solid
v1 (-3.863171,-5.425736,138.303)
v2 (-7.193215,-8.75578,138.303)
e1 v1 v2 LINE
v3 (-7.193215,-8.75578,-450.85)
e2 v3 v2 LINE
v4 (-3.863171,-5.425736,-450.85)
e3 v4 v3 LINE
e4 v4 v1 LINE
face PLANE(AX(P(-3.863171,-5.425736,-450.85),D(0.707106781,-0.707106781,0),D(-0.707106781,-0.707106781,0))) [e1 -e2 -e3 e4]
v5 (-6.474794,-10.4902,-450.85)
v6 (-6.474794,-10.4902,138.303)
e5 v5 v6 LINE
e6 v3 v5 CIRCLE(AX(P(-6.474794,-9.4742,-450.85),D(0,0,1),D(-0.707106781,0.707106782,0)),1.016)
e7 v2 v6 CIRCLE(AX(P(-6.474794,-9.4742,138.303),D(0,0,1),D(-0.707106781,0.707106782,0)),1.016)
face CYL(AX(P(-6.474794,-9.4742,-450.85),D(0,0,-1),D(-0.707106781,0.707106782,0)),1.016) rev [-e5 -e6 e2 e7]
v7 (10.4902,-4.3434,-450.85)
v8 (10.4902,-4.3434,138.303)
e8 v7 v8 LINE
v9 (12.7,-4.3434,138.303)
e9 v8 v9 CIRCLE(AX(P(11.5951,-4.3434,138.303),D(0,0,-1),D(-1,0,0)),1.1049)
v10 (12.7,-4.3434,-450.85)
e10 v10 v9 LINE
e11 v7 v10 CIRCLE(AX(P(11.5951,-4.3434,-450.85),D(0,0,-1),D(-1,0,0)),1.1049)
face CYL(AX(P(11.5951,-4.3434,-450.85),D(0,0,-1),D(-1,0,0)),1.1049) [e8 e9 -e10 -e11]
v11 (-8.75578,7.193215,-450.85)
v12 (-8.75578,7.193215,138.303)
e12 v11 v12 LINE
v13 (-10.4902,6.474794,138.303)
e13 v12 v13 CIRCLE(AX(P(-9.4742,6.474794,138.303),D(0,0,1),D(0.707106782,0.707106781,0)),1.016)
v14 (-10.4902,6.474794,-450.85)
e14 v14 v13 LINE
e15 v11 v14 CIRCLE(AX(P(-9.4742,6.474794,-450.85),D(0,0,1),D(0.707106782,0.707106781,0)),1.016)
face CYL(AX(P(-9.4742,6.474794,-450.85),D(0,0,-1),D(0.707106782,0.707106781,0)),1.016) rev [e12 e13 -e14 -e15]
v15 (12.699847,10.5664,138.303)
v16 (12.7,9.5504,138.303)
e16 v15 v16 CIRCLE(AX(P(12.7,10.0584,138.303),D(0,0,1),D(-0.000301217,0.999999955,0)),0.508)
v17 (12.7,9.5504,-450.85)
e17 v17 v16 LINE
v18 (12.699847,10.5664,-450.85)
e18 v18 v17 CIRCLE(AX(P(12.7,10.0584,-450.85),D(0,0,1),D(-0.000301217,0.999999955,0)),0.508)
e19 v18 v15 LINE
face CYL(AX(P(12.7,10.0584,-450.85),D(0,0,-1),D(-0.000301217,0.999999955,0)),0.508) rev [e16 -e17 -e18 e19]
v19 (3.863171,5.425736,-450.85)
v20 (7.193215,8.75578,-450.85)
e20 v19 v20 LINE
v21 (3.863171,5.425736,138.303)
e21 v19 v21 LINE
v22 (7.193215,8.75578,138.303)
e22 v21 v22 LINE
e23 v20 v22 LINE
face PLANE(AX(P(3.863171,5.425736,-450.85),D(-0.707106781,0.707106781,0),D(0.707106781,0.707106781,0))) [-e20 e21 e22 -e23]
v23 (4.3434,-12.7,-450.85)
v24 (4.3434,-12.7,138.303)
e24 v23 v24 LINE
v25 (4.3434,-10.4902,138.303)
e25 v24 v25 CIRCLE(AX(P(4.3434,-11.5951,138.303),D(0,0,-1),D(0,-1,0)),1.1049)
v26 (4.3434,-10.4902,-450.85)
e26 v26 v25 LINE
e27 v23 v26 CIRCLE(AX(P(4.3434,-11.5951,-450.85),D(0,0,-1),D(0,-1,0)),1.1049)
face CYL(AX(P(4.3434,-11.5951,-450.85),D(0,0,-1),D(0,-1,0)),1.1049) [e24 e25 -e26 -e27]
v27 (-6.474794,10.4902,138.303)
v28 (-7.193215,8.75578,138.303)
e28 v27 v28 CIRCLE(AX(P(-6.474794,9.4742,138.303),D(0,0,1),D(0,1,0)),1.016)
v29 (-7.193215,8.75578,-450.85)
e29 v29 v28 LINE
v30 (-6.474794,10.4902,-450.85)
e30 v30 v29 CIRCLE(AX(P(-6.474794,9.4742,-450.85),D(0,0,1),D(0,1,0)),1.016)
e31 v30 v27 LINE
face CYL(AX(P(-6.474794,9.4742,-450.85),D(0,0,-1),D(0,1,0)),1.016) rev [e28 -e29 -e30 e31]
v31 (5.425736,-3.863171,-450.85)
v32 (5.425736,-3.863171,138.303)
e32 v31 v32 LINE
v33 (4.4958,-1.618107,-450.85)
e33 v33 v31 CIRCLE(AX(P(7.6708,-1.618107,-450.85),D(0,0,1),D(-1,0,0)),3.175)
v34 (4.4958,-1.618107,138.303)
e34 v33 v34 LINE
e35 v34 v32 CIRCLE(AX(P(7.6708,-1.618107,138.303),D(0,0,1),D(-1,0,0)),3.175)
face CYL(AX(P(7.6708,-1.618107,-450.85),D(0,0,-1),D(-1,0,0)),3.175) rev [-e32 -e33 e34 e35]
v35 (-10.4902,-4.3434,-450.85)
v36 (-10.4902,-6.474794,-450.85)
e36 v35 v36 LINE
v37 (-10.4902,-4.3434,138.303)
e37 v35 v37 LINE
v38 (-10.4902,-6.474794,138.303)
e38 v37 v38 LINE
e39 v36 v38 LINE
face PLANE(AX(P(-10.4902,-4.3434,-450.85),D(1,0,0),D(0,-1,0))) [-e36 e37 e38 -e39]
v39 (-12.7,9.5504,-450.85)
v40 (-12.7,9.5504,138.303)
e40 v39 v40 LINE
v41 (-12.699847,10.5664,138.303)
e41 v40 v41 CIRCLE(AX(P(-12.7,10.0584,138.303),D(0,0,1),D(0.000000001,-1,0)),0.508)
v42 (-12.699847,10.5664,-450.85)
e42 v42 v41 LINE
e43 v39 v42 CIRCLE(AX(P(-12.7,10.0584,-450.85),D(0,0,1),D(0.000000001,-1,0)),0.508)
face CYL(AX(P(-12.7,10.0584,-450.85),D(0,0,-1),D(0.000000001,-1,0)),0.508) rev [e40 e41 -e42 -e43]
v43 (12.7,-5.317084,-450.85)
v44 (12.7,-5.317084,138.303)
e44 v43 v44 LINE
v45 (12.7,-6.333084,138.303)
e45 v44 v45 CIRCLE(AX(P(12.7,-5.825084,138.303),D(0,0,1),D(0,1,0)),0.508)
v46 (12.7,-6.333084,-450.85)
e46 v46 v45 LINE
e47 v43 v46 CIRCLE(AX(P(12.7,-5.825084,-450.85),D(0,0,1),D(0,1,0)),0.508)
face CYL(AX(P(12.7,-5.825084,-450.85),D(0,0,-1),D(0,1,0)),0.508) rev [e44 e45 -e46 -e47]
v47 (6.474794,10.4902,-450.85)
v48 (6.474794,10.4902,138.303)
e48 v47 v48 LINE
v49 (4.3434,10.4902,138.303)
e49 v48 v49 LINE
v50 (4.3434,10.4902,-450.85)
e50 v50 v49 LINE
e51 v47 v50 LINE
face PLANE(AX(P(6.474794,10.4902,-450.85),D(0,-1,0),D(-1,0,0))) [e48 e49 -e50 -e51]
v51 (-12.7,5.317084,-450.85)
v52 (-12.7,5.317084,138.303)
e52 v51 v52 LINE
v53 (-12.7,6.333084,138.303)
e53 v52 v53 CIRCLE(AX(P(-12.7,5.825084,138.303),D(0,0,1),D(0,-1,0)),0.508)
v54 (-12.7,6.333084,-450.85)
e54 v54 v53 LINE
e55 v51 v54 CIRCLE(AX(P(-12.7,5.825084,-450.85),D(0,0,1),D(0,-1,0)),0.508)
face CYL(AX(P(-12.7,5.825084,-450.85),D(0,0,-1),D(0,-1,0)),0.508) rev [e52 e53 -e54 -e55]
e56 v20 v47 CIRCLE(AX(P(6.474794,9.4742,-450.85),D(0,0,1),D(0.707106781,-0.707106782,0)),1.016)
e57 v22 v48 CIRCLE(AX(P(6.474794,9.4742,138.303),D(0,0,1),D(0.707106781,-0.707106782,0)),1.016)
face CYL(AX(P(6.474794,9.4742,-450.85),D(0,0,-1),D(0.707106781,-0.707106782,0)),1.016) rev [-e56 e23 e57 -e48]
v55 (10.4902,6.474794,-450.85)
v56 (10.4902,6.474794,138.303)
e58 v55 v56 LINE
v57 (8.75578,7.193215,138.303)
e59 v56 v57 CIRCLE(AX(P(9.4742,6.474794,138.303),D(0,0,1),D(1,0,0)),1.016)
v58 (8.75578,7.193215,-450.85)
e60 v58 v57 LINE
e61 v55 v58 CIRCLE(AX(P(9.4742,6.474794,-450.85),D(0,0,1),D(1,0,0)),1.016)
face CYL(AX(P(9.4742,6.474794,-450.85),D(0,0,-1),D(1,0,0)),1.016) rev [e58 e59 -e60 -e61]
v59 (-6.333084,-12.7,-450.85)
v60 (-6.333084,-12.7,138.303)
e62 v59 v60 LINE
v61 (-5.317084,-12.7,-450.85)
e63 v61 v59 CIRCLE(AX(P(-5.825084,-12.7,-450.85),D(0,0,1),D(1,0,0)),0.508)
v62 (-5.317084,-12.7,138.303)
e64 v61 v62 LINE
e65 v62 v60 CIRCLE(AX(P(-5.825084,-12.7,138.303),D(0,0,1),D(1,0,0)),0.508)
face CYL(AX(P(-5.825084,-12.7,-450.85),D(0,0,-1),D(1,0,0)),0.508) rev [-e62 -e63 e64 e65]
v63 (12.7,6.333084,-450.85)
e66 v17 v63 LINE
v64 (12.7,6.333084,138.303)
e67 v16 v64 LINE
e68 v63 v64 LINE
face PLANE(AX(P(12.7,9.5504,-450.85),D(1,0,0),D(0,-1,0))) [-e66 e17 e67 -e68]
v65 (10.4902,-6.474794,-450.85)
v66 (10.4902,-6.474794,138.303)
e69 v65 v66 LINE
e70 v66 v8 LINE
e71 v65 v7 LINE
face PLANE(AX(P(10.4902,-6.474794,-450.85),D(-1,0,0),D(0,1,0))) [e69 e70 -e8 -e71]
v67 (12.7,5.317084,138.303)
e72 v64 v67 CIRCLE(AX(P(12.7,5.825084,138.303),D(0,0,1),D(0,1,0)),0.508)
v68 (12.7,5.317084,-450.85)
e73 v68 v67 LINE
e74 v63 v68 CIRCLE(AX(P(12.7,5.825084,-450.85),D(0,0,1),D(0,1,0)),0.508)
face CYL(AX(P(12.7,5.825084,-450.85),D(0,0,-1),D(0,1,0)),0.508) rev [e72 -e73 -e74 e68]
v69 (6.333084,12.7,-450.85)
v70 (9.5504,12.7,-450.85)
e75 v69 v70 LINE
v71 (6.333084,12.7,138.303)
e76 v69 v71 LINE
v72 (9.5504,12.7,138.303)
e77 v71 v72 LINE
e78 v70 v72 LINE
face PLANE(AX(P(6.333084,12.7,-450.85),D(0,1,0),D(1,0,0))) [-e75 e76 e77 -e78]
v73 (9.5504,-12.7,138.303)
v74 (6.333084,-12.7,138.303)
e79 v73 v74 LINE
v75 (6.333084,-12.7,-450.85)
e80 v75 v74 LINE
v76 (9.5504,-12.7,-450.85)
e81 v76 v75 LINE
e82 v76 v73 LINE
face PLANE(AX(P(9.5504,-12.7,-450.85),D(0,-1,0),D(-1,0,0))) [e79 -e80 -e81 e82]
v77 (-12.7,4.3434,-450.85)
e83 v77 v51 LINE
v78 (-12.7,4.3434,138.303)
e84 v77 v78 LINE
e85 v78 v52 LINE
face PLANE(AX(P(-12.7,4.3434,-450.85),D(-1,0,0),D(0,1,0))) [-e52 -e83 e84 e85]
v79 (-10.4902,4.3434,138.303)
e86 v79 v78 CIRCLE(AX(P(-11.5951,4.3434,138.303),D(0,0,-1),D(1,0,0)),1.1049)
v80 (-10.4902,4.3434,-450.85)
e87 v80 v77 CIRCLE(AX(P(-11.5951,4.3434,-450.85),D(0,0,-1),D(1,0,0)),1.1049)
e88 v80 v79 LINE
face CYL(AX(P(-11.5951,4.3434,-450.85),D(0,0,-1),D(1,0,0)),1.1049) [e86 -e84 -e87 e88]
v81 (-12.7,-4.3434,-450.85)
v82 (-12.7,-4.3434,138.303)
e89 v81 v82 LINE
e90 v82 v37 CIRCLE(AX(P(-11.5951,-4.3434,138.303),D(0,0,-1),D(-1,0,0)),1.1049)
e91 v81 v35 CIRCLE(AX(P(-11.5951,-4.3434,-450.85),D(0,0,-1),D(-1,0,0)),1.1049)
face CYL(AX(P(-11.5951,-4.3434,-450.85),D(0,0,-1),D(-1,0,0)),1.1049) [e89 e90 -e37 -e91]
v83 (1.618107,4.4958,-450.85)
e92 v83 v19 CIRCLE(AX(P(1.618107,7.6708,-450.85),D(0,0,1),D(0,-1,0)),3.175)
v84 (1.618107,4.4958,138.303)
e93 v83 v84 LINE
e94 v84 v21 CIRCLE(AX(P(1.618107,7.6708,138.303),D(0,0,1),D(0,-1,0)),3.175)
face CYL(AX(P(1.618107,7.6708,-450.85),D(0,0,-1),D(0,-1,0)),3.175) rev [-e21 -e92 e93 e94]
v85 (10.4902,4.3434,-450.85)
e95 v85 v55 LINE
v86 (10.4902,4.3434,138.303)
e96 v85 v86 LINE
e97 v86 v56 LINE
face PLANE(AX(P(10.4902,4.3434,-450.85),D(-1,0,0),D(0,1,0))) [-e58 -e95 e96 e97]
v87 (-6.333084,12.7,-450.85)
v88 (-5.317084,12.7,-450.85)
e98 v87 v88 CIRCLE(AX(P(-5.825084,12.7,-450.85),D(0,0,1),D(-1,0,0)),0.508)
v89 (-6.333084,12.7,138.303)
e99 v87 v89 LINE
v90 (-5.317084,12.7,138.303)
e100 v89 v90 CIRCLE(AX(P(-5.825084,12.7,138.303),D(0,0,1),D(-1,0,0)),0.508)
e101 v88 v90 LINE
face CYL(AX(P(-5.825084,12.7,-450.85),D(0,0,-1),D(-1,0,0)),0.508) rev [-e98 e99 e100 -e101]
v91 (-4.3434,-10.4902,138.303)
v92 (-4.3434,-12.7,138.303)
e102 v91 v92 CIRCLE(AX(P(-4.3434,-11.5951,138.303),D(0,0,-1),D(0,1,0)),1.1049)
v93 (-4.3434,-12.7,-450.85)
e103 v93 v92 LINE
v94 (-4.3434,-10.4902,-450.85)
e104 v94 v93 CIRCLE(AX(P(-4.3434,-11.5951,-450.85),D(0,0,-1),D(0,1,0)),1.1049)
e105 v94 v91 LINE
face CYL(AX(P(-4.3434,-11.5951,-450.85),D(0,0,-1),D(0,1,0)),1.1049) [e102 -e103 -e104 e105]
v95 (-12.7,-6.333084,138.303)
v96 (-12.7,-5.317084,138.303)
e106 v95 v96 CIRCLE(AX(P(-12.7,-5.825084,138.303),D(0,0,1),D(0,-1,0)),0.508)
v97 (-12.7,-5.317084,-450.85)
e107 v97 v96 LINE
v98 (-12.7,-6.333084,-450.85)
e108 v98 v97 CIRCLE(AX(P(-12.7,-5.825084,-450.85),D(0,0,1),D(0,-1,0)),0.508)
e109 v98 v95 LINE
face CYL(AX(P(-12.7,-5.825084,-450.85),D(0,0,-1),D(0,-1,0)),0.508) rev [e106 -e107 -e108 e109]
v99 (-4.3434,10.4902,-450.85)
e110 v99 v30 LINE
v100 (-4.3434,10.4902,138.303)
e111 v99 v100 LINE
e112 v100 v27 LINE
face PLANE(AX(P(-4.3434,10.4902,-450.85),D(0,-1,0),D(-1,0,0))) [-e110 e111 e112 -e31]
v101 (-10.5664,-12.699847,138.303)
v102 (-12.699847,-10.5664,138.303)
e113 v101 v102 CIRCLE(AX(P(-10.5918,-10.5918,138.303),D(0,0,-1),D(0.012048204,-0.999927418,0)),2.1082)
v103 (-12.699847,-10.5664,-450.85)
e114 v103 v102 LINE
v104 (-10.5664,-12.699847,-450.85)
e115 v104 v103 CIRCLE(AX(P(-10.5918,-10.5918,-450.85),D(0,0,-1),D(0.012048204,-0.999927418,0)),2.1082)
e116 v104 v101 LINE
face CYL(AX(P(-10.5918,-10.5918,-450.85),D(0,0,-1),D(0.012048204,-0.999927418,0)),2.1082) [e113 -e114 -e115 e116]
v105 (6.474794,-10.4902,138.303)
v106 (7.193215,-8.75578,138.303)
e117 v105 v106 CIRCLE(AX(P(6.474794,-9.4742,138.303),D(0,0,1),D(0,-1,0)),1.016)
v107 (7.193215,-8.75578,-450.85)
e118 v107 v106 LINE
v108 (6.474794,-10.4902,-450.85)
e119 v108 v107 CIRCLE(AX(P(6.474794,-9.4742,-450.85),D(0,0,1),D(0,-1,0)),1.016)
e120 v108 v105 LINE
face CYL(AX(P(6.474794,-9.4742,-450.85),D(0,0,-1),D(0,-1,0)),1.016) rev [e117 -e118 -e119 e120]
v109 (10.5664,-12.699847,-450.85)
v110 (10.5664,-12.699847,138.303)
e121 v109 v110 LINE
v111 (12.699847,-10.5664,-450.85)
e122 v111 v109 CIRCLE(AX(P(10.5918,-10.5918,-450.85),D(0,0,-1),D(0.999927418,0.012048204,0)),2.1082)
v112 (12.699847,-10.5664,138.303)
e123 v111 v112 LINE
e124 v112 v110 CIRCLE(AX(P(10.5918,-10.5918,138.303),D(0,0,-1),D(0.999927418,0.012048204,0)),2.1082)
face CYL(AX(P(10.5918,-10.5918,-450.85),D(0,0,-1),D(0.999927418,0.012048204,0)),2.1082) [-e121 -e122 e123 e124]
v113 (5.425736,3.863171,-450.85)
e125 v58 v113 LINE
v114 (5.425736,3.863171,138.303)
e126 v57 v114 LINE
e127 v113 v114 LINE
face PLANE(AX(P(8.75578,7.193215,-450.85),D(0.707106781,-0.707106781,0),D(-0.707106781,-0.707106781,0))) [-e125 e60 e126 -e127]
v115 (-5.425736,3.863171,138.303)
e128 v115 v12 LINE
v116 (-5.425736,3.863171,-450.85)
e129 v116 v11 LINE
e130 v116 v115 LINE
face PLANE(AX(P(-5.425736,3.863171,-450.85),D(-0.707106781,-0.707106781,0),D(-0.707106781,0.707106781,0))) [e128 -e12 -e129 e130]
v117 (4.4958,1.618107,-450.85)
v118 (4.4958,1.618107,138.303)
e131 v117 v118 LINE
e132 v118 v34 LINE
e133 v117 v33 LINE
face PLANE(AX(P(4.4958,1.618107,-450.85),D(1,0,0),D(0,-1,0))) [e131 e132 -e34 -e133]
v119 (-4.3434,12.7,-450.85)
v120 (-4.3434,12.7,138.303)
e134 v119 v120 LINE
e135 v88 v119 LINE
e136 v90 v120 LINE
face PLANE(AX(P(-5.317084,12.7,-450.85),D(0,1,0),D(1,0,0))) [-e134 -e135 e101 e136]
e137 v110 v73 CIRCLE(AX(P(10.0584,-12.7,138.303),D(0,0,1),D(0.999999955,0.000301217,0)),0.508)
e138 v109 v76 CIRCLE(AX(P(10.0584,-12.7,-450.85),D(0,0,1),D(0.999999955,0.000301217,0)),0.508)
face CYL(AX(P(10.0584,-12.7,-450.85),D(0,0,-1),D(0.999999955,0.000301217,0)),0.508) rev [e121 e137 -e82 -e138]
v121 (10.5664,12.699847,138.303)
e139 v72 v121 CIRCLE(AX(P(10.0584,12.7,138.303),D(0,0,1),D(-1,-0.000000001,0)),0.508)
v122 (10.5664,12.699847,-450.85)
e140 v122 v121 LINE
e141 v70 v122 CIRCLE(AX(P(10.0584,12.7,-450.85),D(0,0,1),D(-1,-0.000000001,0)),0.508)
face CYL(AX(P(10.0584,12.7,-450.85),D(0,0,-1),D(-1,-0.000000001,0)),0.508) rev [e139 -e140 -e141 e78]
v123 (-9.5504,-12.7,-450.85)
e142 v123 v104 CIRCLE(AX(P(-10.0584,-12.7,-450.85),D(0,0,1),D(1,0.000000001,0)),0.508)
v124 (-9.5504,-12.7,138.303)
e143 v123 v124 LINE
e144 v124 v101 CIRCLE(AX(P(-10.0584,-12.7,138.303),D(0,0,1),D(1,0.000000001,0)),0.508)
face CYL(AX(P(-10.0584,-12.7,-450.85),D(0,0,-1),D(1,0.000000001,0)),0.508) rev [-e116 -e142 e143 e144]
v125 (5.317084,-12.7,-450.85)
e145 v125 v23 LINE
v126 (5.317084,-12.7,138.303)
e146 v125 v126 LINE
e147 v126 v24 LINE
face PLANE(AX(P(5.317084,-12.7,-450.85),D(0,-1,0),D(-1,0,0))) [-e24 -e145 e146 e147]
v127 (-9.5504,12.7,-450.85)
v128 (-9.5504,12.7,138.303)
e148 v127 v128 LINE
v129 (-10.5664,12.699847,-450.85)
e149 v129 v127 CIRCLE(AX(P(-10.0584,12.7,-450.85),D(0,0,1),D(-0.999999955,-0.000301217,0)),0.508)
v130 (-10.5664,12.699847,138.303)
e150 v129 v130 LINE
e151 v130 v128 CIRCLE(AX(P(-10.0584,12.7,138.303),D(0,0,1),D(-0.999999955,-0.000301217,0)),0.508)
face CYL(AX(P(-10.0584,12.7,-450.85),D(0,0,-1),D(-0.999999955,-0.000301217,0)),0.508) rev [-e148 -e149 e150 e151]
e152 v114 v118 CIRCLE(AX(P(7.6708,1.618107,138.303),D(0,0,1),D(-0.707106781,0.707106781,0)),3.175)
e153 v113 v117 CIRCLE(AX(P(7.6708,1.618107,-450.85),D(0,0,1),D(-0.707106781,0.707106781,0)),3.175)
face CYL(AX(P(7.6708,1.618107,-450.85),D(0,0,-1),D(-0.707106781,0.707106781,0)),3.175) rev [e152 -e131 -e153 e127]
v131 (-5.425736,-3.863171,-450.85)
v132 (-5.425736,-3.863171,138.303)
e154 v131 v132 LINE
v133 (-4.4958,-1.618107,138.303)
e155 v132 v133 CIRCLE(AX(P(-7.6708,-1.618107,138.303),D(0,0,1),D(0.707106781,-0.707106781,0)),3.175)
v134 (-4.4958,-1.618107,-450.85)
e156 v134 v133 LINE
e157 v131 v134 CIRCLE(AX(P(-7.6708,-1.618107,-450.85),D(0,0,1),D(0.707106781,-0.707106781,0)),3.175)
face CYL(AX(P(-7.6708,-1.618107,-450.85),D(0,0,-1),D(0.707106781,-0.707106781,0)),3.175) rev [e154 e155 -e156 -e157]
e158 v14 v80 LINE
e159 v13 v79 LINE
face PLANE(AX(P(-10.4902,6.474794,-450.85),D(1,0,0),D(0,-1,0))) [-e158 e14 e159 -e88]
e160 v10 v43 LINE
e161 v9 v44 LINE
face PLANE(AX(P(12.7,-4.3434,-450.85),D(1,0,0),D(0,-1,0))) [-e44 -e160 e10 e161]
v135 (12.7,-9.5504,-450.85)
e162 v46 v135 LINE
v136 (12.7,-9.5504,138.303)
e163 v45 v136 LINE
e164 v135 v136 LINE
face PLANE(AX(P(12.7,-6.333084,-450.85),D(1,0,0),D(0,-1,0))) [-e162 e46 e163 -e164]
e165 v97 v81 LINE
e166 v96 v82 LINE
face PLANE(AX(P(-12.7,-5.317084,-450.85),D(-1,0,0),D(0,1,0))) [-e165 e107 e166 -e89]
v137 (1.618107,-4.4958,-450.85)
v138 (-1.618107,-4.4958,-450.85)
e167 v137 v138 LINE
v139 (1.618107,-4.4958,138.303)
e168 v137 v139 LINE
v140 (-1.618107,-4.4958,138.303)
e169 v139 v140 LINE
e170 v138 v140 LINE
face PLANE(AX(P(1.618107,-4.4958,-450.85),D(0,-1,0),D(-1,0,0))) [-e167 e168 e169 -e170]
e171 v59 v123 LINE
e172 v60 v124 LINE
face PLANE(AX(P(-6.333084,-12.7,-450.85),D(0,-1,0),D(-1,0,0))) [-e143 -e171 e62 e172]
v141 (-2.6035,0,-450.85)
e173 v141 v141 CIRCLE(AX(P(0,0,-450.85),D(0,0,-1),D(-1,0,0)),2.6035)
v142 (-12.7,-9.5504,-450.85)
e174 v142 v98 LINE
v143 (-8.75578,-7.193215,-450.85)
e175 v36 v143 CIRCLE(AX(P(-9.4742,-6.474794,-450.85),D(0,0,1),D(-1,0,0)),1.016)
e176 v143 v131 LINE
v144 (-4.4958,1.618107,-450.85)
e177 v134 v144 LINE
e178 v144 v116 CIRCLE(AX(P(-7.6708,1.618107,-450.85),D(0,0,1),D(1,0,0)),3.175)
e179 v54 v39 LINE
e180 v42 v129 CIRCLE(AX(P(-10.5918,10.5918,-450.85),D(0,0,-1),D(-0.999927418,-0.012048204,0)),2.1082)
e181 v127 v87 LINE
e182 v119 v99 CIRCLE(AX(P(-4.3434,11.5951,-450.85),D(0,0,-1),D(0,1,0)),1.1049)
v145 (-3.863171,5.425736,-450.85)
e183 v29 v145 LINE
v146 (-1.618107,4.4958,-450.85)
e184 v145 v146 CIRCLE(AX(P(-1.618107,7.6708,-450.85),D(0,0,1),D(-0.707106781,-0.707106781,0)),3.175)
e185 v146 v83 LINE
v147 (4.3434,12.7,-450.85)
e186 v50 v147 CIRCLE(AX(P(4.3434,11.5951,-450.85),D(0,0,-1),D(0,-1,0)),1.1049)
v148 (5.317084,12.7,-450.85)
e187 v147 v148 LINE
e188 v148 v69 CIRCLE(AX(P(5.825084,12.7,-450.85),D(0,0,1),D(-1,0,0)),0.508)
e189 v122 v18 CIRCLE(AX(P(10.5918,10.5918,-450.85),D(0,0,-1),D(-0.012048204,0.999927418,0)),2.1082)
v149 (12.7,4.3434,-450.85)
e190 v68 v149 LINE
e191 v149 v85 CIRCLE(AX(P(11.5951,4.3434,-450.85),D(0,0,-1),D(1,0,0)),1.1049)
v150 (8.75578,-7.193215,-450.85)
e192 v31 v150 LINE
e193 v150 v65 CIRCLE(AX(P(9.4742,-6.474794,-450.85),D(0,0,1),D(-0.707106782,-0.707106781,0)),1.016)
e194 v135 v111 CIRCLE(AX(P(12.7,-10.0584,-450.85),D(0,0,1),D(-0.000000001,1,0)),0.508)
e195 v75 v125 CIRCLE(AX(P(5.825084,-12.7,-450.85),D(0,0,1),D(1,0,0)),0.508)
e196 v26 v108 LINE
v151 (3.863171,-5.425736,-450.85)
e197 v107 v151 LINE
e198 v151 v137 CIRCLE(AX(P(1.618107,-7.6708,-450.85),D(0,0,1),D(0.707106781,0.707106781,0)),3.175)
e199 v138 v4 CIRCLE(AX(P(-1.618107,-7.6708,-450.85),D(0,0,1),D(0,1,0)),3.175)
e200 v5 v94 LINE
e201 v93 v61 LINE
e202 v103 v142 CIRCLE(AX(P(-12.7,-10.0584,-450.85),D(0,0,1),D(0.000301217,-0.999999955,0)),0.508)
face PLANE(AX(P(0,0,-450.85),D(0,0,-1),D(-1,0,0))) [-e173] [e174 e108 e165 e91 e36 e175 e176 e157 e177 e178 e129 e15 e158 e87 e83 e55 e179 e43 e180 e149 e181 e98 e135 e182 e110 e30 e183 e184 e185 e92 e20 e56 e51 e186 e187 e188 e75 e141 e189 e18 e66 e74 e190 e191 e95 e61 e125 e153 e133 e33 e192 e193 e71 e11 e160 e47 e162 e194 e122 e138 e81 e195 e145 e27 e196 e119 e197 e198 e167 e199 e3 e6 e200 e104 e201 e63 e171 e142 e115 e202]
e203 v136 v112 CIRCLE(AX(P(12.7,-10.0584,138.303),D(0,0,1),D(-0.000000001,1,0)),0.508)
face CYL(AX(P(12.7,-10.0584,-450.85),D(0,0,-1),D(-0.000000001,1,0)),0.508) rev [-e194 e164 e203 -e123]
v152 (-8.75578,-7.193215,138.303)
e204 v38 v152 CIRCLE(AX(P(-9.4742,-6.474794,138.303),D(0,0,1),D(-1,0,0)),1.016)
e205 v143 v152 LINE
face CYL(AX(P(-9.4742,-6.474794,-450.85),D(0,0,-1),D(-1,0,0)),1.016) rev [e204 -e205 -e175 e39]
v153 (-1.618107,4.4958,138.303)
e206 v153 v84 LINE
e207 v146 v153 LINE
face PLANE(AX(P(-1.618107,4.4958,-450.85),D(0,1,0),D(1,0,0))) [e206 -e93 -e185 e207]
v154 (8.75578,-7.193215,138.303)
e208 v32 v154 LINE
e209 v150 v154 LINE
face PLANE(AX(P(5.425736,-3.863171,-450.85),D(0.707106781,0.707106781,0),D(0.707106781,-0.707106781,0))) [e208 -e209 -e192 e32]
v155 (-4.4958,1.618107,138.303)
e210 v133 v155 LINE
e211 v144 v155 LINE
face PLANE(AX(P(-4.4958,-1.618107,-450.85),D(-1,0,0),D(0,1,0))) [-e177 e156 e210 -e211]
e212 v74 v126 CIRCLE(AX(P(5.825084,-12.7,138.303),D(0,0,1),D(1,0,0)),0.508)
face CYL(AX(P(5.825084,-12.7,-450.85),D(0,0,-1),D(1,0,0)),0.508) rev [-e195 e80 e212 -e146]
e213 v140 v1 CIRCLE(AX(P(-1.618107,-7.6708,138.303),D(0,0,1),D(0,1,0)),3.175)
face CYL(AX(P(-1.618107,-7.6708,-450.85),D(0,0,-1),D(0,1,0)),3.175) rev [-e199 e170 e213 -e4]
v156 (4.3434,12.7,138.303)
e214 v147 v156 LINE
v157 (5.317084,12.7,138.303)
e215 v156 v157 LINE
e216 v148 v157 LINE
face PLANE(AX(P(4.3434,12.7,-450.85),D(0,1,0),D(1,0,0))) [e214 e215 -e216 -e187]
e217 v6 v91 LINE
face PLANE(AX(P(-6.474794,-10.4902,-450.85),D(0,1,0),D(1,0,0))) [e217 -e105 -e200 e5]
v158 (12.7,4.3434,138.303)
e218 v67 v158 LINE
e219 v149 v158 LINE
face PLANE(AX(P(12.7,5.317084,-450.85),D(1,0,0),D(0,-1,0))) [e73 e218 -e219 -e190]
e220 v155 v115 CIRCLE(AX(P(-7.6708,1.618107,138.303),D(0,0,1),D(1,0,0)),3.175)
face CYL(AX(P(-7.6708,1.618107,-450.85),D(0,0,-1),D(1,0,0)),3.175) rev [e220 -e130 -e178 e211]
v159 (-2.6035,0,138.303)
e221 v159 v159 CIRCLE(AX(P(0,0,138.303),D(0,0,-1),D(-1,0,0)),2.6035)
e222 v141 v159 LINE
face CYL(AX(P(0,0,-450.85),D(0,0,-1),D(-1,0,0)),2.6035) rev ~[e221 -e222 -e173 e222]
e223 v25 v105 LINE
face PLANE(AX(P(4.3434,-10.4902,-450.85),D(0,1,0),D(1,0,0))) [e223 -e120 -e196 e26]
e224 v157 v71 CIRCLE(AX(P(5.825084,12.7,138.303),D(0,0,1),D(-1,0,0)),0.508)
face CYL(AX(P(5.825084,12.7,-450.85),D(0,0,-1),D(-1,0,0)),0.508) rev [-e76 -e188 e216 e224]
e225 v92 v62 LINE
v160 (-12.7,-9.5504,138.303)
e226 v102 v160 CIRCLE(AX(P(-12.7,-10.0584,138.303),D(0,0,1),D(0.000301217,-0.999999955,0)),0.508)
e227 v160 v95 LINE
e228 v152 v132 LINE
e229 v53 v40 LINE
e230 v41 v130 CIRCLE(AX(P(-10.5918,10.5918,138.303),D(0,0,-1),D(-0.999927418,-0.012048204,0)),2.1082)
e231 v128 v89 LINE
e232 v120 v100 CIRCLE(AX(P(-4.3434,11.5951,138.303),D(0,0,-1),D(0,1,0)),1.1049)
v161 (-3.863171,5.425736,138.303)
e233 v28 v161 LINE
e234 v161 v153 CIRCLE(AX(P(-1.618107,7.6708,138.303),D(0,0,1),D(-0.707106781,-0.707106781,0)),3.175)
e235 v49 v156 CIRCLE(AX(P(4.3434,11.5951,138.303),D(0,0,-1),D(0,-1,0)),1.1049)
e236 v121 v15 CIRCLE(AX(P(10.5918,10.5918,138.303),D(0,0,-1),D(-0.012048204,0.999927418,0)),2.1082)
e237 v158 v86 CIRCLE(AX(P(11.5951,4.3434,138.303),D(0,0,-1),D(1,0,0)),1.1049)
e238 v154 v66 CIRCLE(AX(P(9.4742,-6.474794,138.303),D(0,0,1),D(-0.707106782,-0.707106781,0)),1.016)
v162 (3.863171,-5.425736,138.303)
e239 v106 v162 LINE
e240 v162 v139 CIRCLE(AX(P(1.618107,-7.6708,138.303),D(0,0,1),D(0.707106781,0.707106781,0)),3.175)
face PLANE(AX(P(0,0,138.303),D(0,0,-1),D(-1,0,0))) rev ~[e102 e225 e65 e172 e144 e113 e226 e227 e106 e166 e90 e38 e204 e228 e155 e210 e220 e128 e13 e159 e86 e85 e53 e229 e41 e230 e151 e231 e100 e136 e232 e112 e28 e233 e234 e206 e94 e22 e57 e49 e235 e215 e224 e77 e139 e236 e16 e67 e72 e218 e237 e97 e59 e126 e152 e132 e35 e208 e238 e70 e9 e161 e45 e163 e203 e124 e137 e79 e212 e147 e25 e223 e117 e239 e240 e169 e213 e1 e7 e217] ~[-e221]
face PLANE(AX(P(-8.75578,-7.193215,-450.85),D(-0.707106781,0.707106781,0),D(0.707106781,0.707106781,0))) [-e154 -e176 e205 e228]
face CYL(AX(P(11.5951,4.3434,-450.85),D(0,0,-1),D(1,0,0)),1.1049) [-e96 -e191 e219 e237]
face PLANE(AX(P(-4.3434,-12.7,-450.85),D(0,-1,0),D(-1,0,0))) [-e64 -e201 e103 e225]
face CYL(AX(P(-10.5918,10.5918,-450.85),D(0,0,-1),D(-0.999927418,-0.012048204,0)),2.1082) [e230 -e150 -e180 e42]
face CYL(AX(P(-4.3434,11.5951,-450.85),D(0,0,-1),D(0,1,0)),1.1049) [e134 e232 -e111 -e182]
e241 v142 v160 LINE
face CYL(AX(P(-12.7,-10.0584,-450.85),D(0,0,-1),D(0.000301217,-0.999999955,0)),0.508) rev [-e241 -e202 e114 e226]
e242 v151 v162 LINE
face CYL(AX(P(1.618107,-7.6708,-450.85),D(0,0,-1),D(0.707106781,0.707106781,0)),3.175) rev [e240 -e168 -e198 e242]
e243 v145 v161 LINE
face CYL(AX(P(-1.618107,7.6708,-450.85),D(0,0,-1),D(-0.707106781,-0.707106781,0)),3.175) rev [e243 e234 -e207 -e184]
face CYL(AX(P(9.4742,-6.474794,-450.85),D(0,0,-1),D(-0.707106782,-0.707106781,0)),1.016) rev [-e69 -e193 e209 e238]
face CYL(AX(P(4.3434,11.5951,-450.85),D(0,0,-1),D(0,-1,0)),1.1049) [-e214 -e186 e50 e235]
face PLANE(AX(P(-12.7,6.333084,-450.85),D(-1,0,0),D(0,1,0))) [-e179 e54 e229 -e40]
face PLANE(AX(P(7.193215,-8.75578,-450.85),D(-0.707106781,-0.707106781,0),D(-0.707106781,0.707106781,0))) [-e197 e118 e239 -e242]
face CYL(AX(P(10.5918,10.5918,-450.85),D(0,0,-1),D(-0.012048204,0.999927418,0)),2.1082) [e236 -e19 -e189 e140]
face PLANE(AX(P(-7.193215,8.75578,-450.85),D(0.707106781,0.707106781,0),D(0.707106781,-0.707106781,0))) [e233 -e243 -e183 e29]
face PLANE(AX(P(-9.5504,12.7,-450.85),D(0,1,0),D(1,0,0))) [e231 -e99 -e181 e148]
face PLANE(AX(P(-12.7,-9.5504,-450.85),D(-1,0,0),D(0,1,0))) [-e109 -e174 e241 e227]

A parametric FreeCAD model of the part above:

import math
import FreeCAD as App
import Part
import Sketcher
Q = App.Units.Quantity

doc = App.newDocument("Part")
body = doc.addObject("PartDesign::Body", "Body")

# Sketch on XY plane
sketch1 = body.newObject("Sketcher::SketchObject", "Sketch")
sketch1.AttachmentSupport = (doc.getObject("XY_Plane"), [""])
sketch1.MapMode = "FlatFace"
sketch1.AttachmentOffset = App.Placement(App.Vector(0, 0, -17.75 * 25.4), App.Rotation())
sketch1.addGeometry(Part.LineSegment(App.Vector(-12.7, -9.6, 0), App.Vector(-12.7, -6.3, 0)), False)
sketch1.addGeometry(Part.ArcOfCircle(Part.Circle(App.Vector(-12.7, -5.8, 0), App.Vector(0, 0, 1), 0.5), math.radians(-90), math.radians(90)), False)
sketch1.addGeometry(Part.LineSegment(App.Vector(-12.7, -5.3, 0), App.Vector(-12.7, -4.3, 0)), False)
sketch1.addGeometry(Part.ArcOfCircle(Part.Circle(App.Vector(-11.6, -4.3, 0), App.Vector(0, 0, 1), 1.1), math.radians(0), math.radians(180)), False)
sketch1.addGeometry(Part.LineSegment(App.Vector(-10.5, -4.3, 0), App.Vector(-10.5, -6.5, 0)), False)
sketch1.addGeometry(Part.ArcOfCircle(Part.Circle(App.Vector(-9.5, -6.5, 0), App.Vector(0, 0, 1), 1), math.radians(180), math.radians(315)), False)
sketch1.addGeometry(Part.LineSegment(App.Vector(-8.8, -7.2, 0), App.Vector(-5.4, -3.9, 0)), False)
sketch1.addGeometry(Part.ArcOfCircle(Part.Circle(App.Vector(-7.7, -1.6, 0), App.Vector(0, 0, 1), 3.2), math.radians(-45), math.radians(0)), False)
sketch1.addGeometry(Part.LineSegment(App.Vector(-4.5, -1.6, 0), App.Vector(-4.5, 1.6, 0)), False)
sketch1.addGeometry(Part.ArcOfCircle(Part.Circle(App.Vector(-7.7, 1.6, 0), App.Vector(0, 0, 1), 3.2), math.radians(0), math.radians(45)), False)
sketch1.addGeometry(Part.LineSegment(App.Vector(-5.4, 3.9, 0), App.Vector(-8.8, 7.2, 0)), False)
sketch1.addGeometry(Part.ArcOfCircle(Part.Circle(App.Vector(-9.5, 6.5, 0), App.Vector(0, 0, 1), 1), math.radians(45), math.radians(180)), False)
sketch1.addGeometry(Part.LineSegment(App.Vector(-10.5, 6.5, 0), App.Vector(-10.5, 4.3, 0)), False)
sketch1.addGeometry(Part.ArcOfCircle(Part.Circle(App.Vector(-11.6, 4.3, 0), App.Vector(0, 0, 1), 1.1), math.radians(180), math.radians(360)), False)
sketch1.addGeometry(Part.LineSegment(App.Vector(-12.7, 4.3, 0), App.Vector(-12.7, 5.3, 0)), False)
sketch1.addGeometry(Part.ArcOfCircle(Part.Circle(App.Vector(-12.7, 5.8, 0), App.Vector(0, 0, 1), 0.5), math.radians(-90), math.radians(90)), False)
sketch1.addGeometry(Part.LineSegment(App.Vector(-12.7, 6.3, 0), App.Vector(-12.7, 9.6, 0)), False)
sketch1.addGeometry(Part.ArcOfCircle(Part.Circle(App.Vector(-12.7, 10.1, 0), App.Vector(0, 0, 1), 0.5), math.radians(-90), math.radians(90)), False)
sketch1.addGeometry(Part.ArcOfCircle(Part.Circle(App.Vector(-10.6, 10.6, 0), App.Vector(0, 0, 1), 2.1), math.radians(89), math.radians(181)), False)
sketch1.addGeometry(Part.ArcOfCircle(Part.Circle(App.Vector(-10.1, 12.7, 0), App.Vector(0, 0, 1), 0.5), math.radians(-180), math.radians(0)), False)
sketch1.addGeometry(Part.LineSegment(App.Vector(-9.6, 12.7, 0), App.Vector(-6.3, 12.7, 0)), False)
sketch1.addGeometry(Part.ArcOfCircle(Part.Circle(App.Vector(-5.8, 12.7, 0), App.Vector(0, 0, 1), 0.5), math.radians(180), math.radians(360)), False)
sketch1.addGeometry(Part.LineSegment(App.Vector(-5.3, 12.7, 0), App.Vector(-4.3, 12.7, 0)), False)
sketch1.addGeometry(Part.ArcOfCircle(Part.Circle(App.Vector(-4.3, 11.6, 0), App.Vector(0, 0, 1), 1.1), math.radians(-90), math.radians(90)), False)
sketch1.addGeometry(Part.LineSegment(App.Vector(-4.3, 10.5, 0), App.Vector(-6.5, 10.5, 0)), False)
sketch1.addGeometry(Part.ArcOfCircle(Part.Circle(App.Vector(-6.5, 9.5, 0), App.Vector(0, 0, 1), 1), math.radians(90), math.radians(225)), False)
sketch1.addGeometry(Part.LineSegment(App.Vector(-7.2, 8.8, 0), App.Vector(-3.9, 5.4, 0)), False)
sketch1.addGeometry(Part.ArcOfCircle(Part.Circle(App.Vector(-1.6, 7.7, 0), App.Vector(0, 0, 1), 3.2), math.radians(-135), math.radians(-90)), False)
sketch1.addGeometry(Part.LineSegment(App.Vector(-1.6, 4.5, 0), App.Vector(1.6, 4.5, 0)), False)
sketch1.addGeometry(Part.ArcOfCircle(Part.Circle(App.Vector(1.6, 7.7, 0), App.Vector(0, 0, 1), 3.2), math.radians(-90), math.radians(-45)), False)
sketch1.addGeometry(Part.LineSegment(App.Vector(3.9, 5.4, 0), App.Vector(7.2, 8.8, 0)), False)
sketch1.addGeometry(Part.ArcOfCircle(Part.Circle(App.Vector(6.5, 9.5, 0), App.Vector(0, 0, 1), 1), math.radians(-45), math.radians(90)), False)
sketch1.addGeometry(Part.LineSegment(App.Vector(6.5, 10.5, 0), App.Vector(4.3, 10.5, 0)), False)
sketch1.addGeometry(Part.ArcOfCircle(Part.Circle(App.Vector(4.3, 11.6, 0), App.Vector(0, 0, 1), 1.1), math.radians(90), math.radians(270)), False)
sketch1.addGeometry(Part.LineSegment(App.Vector(4.3, 12.7, 0), App.Vector(5.3, 12.7, 0)), False)
sketch1.addGeometry(Part.ArcOfCircle(Part.Circle(App.Vector(5.8, 12.7, 0), App.Vector(0, 0, 1), 0.5), math.radians(180), math.radians(360)), False)
sketch1.addGeometry(Part.LineSegment(App.Vector(6.3, 12.7, 0), App.Vector(9.6, 12.7, 0)), False)
sketch1.addGeometry(Part.ArcOfCircle(Part.Circle(App.Vector(10.1, 12.7, 0), App.Vector(0, 0, 1), 0.5), math.radians(180), math.radians(360)), False)
sketch1.addGeometry(Part.ArcOfCircle(Part.Circle(App.Vector(10.6, 10.6, 0), App.Vector(0, 0, 1), 2.1), math.radians(-1), math.radians(91)), False)
sketch1.addGeometry(Part.ArcOfCircle(Part.Circle(App.Vector(12.7, 10.1, 0), App.Vector(0, 0, 1), 0.5), math.radians(90), math.radians(270)), False)
sketch1.addGeometry(Part.LineSegment(App.Vector(12.7, 9.6, 0), App.Vector(12.7, 6.3, 0)), False)
sketch1.addGeometry(Part.ArcOfCircle(Part.Circle(App.Vector(12.7, 5.8, 0), App.Vector(0, 0, 1), 0.5), math.radians(90), math.radians(270)), False)
sketch1.addGeometry(Part.LineSegment(App.Vector(12.7, 5.3, 0), App.Vector(12.7, 4.3, 0)), False)
sketch1.addGeometry(Part.ArcOfCircle(Part.Circle(App.Vector(11.6, 4.3, 0), App.Vector(0, 0, 1), 1.1), math.radians(180), math.radians(360)), False)
sketch1.addGeometry(Part.LineSegment(App.Vector(10.5, 4.3, 0), App.Vector(10.5, 6.5, 0)), False)
sketch1.addGeometry(Part.ArcOfCircle(Part.Circle(App.Vector(9.5, 6.5, 0), App.Vector(0, 0, 1), 1), math.radians(0), math.radians(135)), False)
sketch1.addGeometry(Part.LineSegment(App.Vector(8.8, 7.2, 0), App.Vector(5.4, 3.9, 0)), False)
sketch1.addGeometry(Part.ArcOfCircle(Part.Circle(App.Vector(7.7, 1.6, 0), App.Vector(0, 0, 1), 3.2), math.radians(135), math.radians(180)), False)
sketch1.addGeometry(Part.LineSegment(App.Vector(4.5, 1.6, 0), App.Vector(4.5, -1.6, 0)), False)
sketch1.addGeometry(Part.ArcOfCircle(Part.Circle(App.Vector(7.7, -1.6, 0), App.Vector(0, 0, 1), 3.2), math.radians(180), math.radians(225)), False)
sketch1.addGeometry(Part.LineSegment(App.Vector(5.4, -3.9, 0), App.Vector(8.8, -7.2, 0)), False)
sketch1.addGeometry(Part.ArcOfCircle(Part.Circle(App.Vector(9.5, -6.5, 0), App.Vector(0, 0, 1), 1), math.radians(-135), math.radians(0)), False)
sketch1.addGeometry(Part.LineSegment(App.Vector(10.5, -6.5, 0), App.Vector(10.5, -4.3, 0)), False)
sketch1.addGeometry(Part.ArcOfCircle(Part.Circle(App.Vector(11.6, -4.3, 0), App.Vector(0, 0, 1), 1.1), math.radians(0), math.radians(180)), False)
sketch1.addGeometry(Part.LineSegment(App.Vector(12.7, -4.3, 0), App.Vector(12.7, -5.3, 0)), False)
sketch1.addGeometry(Part.ArcOfCircle(Part.Circle(App.Vector(12.7, -5.8, 0), App.Vector(0, 0, 1), 0.5), math.radians(90), math.radians(270)), False)
sketch1.addGeometry(Part.LineSegment(App.Vector(12.7, -6.3, 0), App.Vector(12.7, -9.6, 0)), False)
sketch1.addGeometry(Part.ArcOfCircle(Part.Circle(App.Vector(12.7, -10.1, 0), App.Vector(0, 0, 1), 0.5), math.radians(90), math.radians(270)), False)
sketch1.addGeometry(Part.ArcOfCircle(Part.Circle(App.Vector(10.6, -10.6, 0), App.Vector(0, 0, 1), 2.1), math.radians(-91), math.radians(1)), False)
sketch1.addGeometry(Part.ArcOfCircle(Part.Circle(App.Vector(10.1, -12.7, 0), App.Vector(0, 0, 1), 0.5), math.radians(0), math.radians(180)), False)
sketch1.addGeometry(Part.LineSegment(App.Vector(9.6, -12.7, 0), App.Vector(6.3, -12.7, 0)), False)
sketch1.addGeometry(Part.ArcOfCircle(Part.Circle(App.Vector(5.8, -12.7, 0), App.Vector(0, 0, 1), 0.5), math.radians(0), math.radians(180)), False)
sketch1.addGeometry(Part.LineSegment(App.Vector(5.3, -12.7, 0), App.Vector(4.3, -12.7, 0)), False)
sketch1.addGeometry(Part.ArcOfCircle(Part.Circle(App.Vector(4.3, -11.6, 0), App.Vector(0, 0, 1), 1.1), math.radians(90), math.radians(270)), False)
sketch1.addGeometry(Part.LineSegment(App.Vector(4.3, -10.5, 0), App.Vector(6.5, -10.5, 0)), False)
sketch1.addGeometry(Part.ArcOfCircle(Part.Circle(App.Vector(6.5, -9.5, 0), App.Vector(0, 0, 1), 1), math.radians(-90), math.radians(45)), False)
sketch1.addGeometry(Part.LineSegment(App.Vector(7.2, -8.8, 0), App.Vector(3.9, -5.4, 0)), False)
sketch1.addGeometry(Part.ArcOfCircle(Part.Circle(App.Vector(1.6, -7.7, 0), App.Vector(0, 0, 1), 3.2), math.radians(45), math.radians(90)), False)
sketch1.addGeometry(Part.LineSegment(App.Vector(1.6, -4.5, 0), App.Vector(-1.6, -4.5, 0)), False)
sketch1.addGeometry(Part.ArcOfCircle(Part.Circle(App.Vector(-1.6, -7.7, 0), App.Vector(0, 0, 1), 3.2), math.radians(90), math.radians(135)), False)
sketch1.addGeometry(Part.LineSegment(App.Vector(-3.9, -5.4, 0), App.Vector(-7.2, -8.8, 0)), False)
sketch1.addGeometry(Part.ArcOfCircle(Part.Circle(App.Vector(-6.5, -9.5, 0), App.Vector(0, 0, 1), 1), math.radians(135), math.radians(270)), False)
sketch1.addGeometry(Part.LineSegment(App.Vector(-6.5, -10.5, 0), App.Vector(-4.3, -10.5, 0)), False)
sketch1.addGeometry(Part.ArcOfCircle(Part.Circle(App.Vector(-4.3, -11.6, 0), App.Vector(0, 0, 1), 1.1), math.radians(-90), math.radians(90)), False)
sketch1.addGeometry(Part.LineSegment(App.Vector(-4.3, -12.7, 0), App.Vector(-5.3, -12.7, 0)), False)
sketch1.addGeometry(Part.ArcOfCircle(Part.Circle(App.Vector(-5.8, -12.7, 0), App.Vector(0, 0, 1), 0.5), math.radians(0), math.radians(180)), False)
sketch1.addGeometry(Part.LineSegment(App.Vector(-6.3, -12.7, 0), App.Vector(-9.6, -12.7, 0)), False)
sketch1.addGeometry(Part.ArcOfCircle(Part.Circle(App.Vector(-10.1, -12.7, 0), App.Vector(0, 0, 1), 0.5), math.radians(0), math.radians(180)), False)
sketch1.addGeometry(Part.ArcOfCircle(Part.Circle(App.Vector(-10.6, -10.6, 0), App.Vector(0, 0, 1), 2.1), math.radians(179), math.radians(271)), False)
sketch1.addGeometry(Part.ArcOfCircle(Part.Circle(App.Vector(-12.7, -10.1, 0), App.Vector(0, 0, 1), 0.5), math.radians(-90), math.radians(90)), False)
sketch1.addGeometry(Part.Circle(App.Vector(0, 0, 0), App.Vector(0, 0, 1), 2.6), False)
sketch1.addConstraint(Sketcher.Constraint("Coincident", 0, 2, 1, 1))
sketch1.addConstraint(Sketcher.Constraint("Coincident", 1, 2, 2, 1))
sketch1.addConstraint(Sketcher.Constraint("Tangent", 2, 2, 3, 2))
sketch1.addConstraint(Sketcher.Constraint("Tangent", 3, 1, 4, 1))
sketch1.addConstraint(Sketcher.Constraint("Tangent", 4, 2, 5, 1))
sketch1.addConstraint(Sketcher.Constraint("Tangent", 5, 2, 6, 1))
sketch1.addConstraint(Sketcher.Constraint("Tangent", 6, 2, 7, 1))
sketch1.addConstraint(Sketcher.Constraint("Tangent", 7, 2, 8, 1))
sketch1.addConstraint(Sketcher.Constraint("Tangent", 8, 2, 9, 1))
sketch1.addConstraint(Sketcher.Constraint("Tangent", 9, 2, 10, 1))
sketch1.addConstraint(Sketcher.Constraint("Tangent", 10, 2, 11, 1))
sketch1.addConstraint(Sketcher.Constraint("Tangent", 11, 2, 12, 1))
sketch1.addConstraint(Sketcher.Constraint("Tangent", 12, 2, 13, 2))
sketch1.addConstraint(Sketcher.Constraint("Tangent", 13, 1, 14, 1))
sketch1.addConstraint(Sketcher.Constraint("Coincident", 14, 2, 15, 1))
sketch1.addConstraint(Sketcher.Constraint("Coincident", 15, 2, 16, 1))
sketch1.addConstraint(Sketcher.Constraint("Coincident", 16, 2, 17, 1))
sketch1.addConstraint(Sketcher.Constraint("Coincident", 17, 2, 18, 2))
sketch1.addConstraint(Sketcher.Constraint("Coincident", 18, 1, 19, 1))
sketch1.addConstraint(Sketcher.Constraint("Coincident", 19, 2, 20, 1))
sketch1.addConstraint(Sketcher.Constraint("Coincident", 20, 2, 21, 1))
sketch1.addConstraint(Sketcher.Constraint("Coincident", 21, 2, 22, 1))
sketch1.addConstraint(Sketcher.Constraint("Tangent", 22, 2, 23, 2))
sketch1.addConstraint(Sketcher.Constraint("Tangent", 23, 1, 24, 1))
sketch1.addConstraint(Sketcher.Constraint("Tangent", 24, 2, 25, 1))
sketch1.addConstraint(Sketcher.Constraint("Tangent", 25, 2, 26, 1))
sketch1.addConstraint(Sketcher.Constraint("Tangent", 26, 2, 27, 1))
sketch1.addConstraint(Sketcher.Constraint("Tangent", 27, 2, 28, 1))
sketch1.addConstraint(Sketcher.Constraint("Tangent", 28, 2, 29, 1))
sketch1.addConstraint(Sketcher.Constraint("Tangent", 29, 2, 30, 1))
sketch1.addConstraint(Sketcher.Constraint("Tangent", 30, 2, 31, 1))
sketch1.addConstraint(Sketcher.Constraint("Tangent", 31, 2, 32, 1))
sketch1.addConstraint(Sketcher.Constraint("Tangent", 32, 2, 33, 2))
sketch1.addConstraint(Sketcher.Constraint("Tangent", 33, 1, 34, 1))
sketch1.addConstraint(Sketcher.Constraint("Coincident", 34, 2, 35, 1))
sketch1.addConstraint(Sketcher.Constraint("Coincident", 35, 2, 36, 1))
sketch1.addConstraint(Sketcher.Constraint("Coincident", 36, 2, 37, 1))
sketch1.addConstraint(Sketcher.Constraint("Coincident", 37, 2, 38, 2))
sketch1.addConstraint(Sketcher.Constraint("Coincident", 38, 1, 39, 1))
sketch1.addConstraint(Sketcher.Constraint("Coincident", 39, 2, 40, 1))
sketch1.addConstraint(Sketcher.Constraint("Coincident", 40, 2, 41, 1))
sketch1.addConstraint(Sketcher.Constraint("Coincident", 41, 2, 42, 1))
sketch1.addConstraint(Sketcher.Constraint("Tangent", 42, 2, 43, 2))
sketch1.addConstraint(Sketcher.Constraint("Tangent", 43, 1, 44, 1))
sketch1.addConstraint(Sketcher.Constraint("Tangent", 44, 2, 45, 1))
sketch1.addConstraint(Sketcher.Constraint("Tangent", 45, 2, 46, 1))
sketch1.addConstraint(Sketcher.Constraint("Tangent", 46, 2, 47, 1))
sketch1.addConstraint(Sketcher.Constraint("Tangent", 47, 2, 48, 1))
sketch1.addConstraint(Sketcher.Constraint("Tangent", 48, 2, 49, 1))
sketch1.addConstraint(Sketcher.Constraint("Tangent", 49, 2, 50, 1))
sketch1.addConstraint(Sketcher.Constraint("Tangent", 50, 2, 51, 1))
sketch1.addConstraint(Sketcher.Constraint("Tangent", 51, 2, 52, 1))
sketch1.addConstraint(Sketcher.Constraint("Tangent", 52, 2, 53, 2))
sketch1.addConstraint(Sketcher.Constraint("Tangent", 53, 1, 54, 1))
sketch1.addConstraint(Sketcher.Constraint("Coincident", 54, 2, 55, 1))
sketch1.addConstraint(Sketcher.Constraint("Coincident", 55, 2, 56, 1))
sketch1.addConstraint(Sketcher.Constraint("Coincident", 56, 2, 57, 1))
sketch1.addConstraint(Sketcher.Constraint("Coincident", 57, 2, 58, 2))
sketch1.addConstraint(Sketcher.Constraint("Coincident", 58, 1, 59, 1))
sketch1.addConstraint(Sketcher.Constraint("Coincident", 59, 2, 60, 1))
sketch1.addConstraint(Sketcher.Constraint("Coincident", 60, 2, 61, 1))
sketch1.addConstraint(Sketcher.Constraint("Coincident", 61, 2, 62, 1))
sketch1.addConstraint(Sketcher.Constraint("Tangent", 62, 2, 63, 2))
sketch1.addConstraint(Sketcher.Constraint("Tangent", 63, 1, 64, 1))
sketch1.addConstraint(Sketcher.Constraint("Tangent", 64, 2, 65, 1))
sketch1.addConstraint(Sketcher.Constraint("Tangent", 65, 2, 66, 1))
sketch1.addConstraint(Sketcher.Constraint("Tangent", 66, 2, 67, 1))
sketch1.addConstraint(Sketcher.Constraint("Tangent", 67, 2, 68, 1))
sketch1.addConstraint(Sketcher.Constraint("Tangent", 68, 2, 69, 1))
sketch1.addConstraint(Sketcher.Constraint("Tangent", 69, 2, 70, 1))
sketch1.addConstraint(Sketcher.Constraint("Tangent", 70, 2, 71, 1))
sketch1.addConstraint(Sketcher.Constraint("Tangent", 71, 2, 72, 1))
sketch1.addConstraint(Sketcher.Constraint("Tangent", 72, 2, 73, 2))
sketch1.addConstraint(Sketcher.Constraint("Tangent", 73, 1, 74, 1))
sketch1.addConstraint(Sketcher.Constraint("Coincident", 74, 2, 75, 1))
sketch1.addConstraint(Sketcher.Constraint("Coincident", 75, 2, 76, 1))
sketch1.addConstraint(Sketcher.Constraint("Coincident", 76, 2, 77, 1))
sketch1.addConstraint(Sketcher.Constraint("Coincident", 77, 2, 78, 2))
sketch1.addConstraint(Sketcher.Constraint("Coincident", 78, 1, 79, 1))
sketch1.addConstraint(Sketcher.Constraint("Coincident", 79, 2, 0, 1))
sketch1.addConstraint(Sketcher.Constraint("Vertical", 0))
sketch1.addConstraint(Sketcher.Constraint("Vertical", 2))
sketch1.addConstraint(Sketcher.Constraint("Vertical", 4))
sketch1.addConstraint(Sketcher.Constraint("Vertical", 8))
sketch1.addConstraint(Sketcher.Constraint("Vertical", 12))
sketch1.addConstraint(Sketcher.Constraint("Vertical", 14))
sketch1.addConstraint(Sketcher.Constraint("Vertical", 16))
sketch1.addConstraint(Sketcher.Constraint("Horizontal", 20))
sketch1.addConstraint(Sketcher.Constraint("Horizontal", 22))
sketch1.addConstraint(Sketcher.Constraint("Horizontal", 24))
sketch1.addConstraint(Sketcher.Constraint("Horizontal", 28))
sketch1.addConstraint(Sketcher.Constraint("Horizontal", 32))
sketch1.addConstraint(Sketcher.Constraint("Horizontal", 34))
sketch1.addConstraint(Sketcher.Constraint("Horizontal", 36))
sketch1.addConstraint(Sketcher.Constraint("Vertical", 40))
sketch1.addConstraint(Sketcher.Constraint("Vertical", 42))
sketch1.addConstraint(Sketcher.Constraint("Vertical", 44))
sketch1.addConstraint(Sketcher.Constraint("Vertical", 48))
sketch1.addConstraint(Sketcher.Constraint("Vertical", 52))
sketch1.addConstraint(Sketcher.Constraint("Vertical", 54))
sketch1.addConstraint(Sketcher.Constraint("Vertical", 56))
sketch1.addConstraint(Sketcher.Constraint("Horizontal", 60))
sketch1.addConstraint(Sketcher.Constraint("Horizontal", 62))
sketch1.addConstraint(Sketcher.Constraint("Horizontal", 64))
sketch1.addConstraint(Sketcher.Constraint("Horizontal", 68))
sketch1.addConstraint(Sketcher.Constraint("Horizontal", 72))
sketch1.addConstraint(Sketcher.Constraint("Horizontal", 74))
sketch1.addConstraint(Sketcher.Constraint("Horizontal", 76))
sketch1.addConstraint(Sketcher.Constraint("Coincident", 80, 3, -1, 1))
sketch1.addConstraint(Sketcher.Constraint("Equal", 7, 9))
sketch1.addConstraint(Sketcher.Constraint("Equal", 5, 11))
sketch1.addConstraint(Sketcher.Constraint("Equal", 3, 13))
sketch1.addConstraint(Sketcher.Constraint("Equal", 1, 15))
sketch1.addConstraint(Sketcher.Constraint("Equal", 15, 17))
sketch1.addConstraint(Sketcher.Constraint("Equal", 17, 19))
sketch1.addConstraint(Sketcher.Constraint("Equal", 19, 21))
sketch1.addConstraint(Sketcher.Constraint("Equal", 13, 23))
sketch1.addConstraint(Sketcher.Constraint("Equal", 11, 25))
sketch1.addConstraint(Sketcher.Constraint("Equal", 9, 27))
sketch1.addConstraint(Sketcher.Constraint("Equal", 27, 29))
sketch1.addConstraint(Sketcher.Constraint("Equal", 25, 31))
sketch1.addConstraint(Sketcher.Constraint("Equal", 23, 33))
sketch1.addConstraint(Sketcher.Constraint("Equal", 21, 35))
sketch1.addConstraint(Sketcher.Constraint("Equal", 35, 37))
sketch1.addConstraint(Sketcher.Constraint("Equal", 18, 38))
sketch1.addConstraint(Sketcher.Constraint("Equal", 37, 39))
sketch1.addConstraint(Sketcher.Constraint("Equal", 39, 41))
sketch1.addConstraint(Sketcher.Constraint("Equal", 33, 43))
sketch1.addConstraint(Sketcher.Constraint("Equal", 31, 45))
sketch1.addConstraint(Sketcher.Constraint("Equal", 29, 47))
sketch1.addConstraint(Sketcher.Constraint("Equal", 47, 49))
sketch1.addConstraint(Sketcher.Constraint("Equal", 45, 51))
sketch1.addConstraint(Sketcher.Constraint("Equal", 43, 53))
sketch1.addConstraint(Sketcher.Constraint("Equal", 41, 55))
sketch1.addConstraint(Sketcher.Constraint("Equal", 55, 57))
sketch1.addConstraint(Sketcher.Constraint("Equal", 38, 58))
sketch1.addConstraint(Sketcher.Constraint("Equal", 57, 59))
sketch1.addConstraint(Sketcher.Constraint("Equal", 59, 61))
sketch1.addConstraint(Sketcher.Constraint("Equal", 53, 63))
sketch1.addConstraint(Sketcher.Constraint("Equal", 51, 65))
sketch1.addConstraint(Sketcher.Constraint("Equal", 49, 67))
sketch1.addConstraint(Sketcher.Constraint("Equal", 67, 69))
sketch1.addConstraint(Sketcher.Constraint("Equal", 65, 71))
sketch1.addConstraint(Sketcher.Constraint("Equal", 63, 73))
sketch1.addConstraint(Sketcher.Constraint("Equal", 61, 75))
sketch1.addConstraint(Sketcher.Constraint("Equal", 75, 77))
sketch1.addConstraint(Sketcher.Constraint("Equal", 58, 78))
sketch1.addConstraint(Sketcher.Constraint("Equal", 77, 79))
sketch1.addConstraint(Sketcher.Constraint("Symmetric", 1, 3, 41, 3, -1, 1))
sketch1.addConstraint(Sketcher.Constraint("Symmetric", 3, 3, 43, 3, -1, 1))
sketch1.addConstraint(Sketcher.Constraint("Symmetric", 7, 3, 47, 3, -1, 1))
sketch1.addConstraint(Sketcher.Constraint("Symmetric", 11, 3, 51, 3, -1, 1))
sketch1.addConstraint(Sketcher.Constraint("Symmetric", 15, 3, 55, 3, -1, 1))
sketch1.addConstraint(Sketcher.Constraint("Symmetric", 17, 3, 57, 3, -1, 1))
sketch1.addConstraint(Sketcher.Constraint("Symmetric", 18, 3, 58, 3, -1, 1))
sketch1.addConstraint(Sketcher.Constraint("Symmetric", 19, 3, 59, 3, -1, 1))
sketch1.addConstraint(Sketcher.Constraint("Symmetric", 21, 3, 61, 3, -1, 1))
sketch1.addConstraint(Sketcher.Constraint("Symmetric", 23, 3, 63, 3, -1, 1))
sketch1.addConstraint(Sketcher.Constraint("Symmetric", 27, 3, 67, 3, -1, 1))
sketch1.addConstraint(Sketcher.Constraint("Symmetric", 31, 3, 71, 3, -1, 1))
sketch1.addConstraint(Sketcher.Constraint("Symmetric", 35, 3, 75, 3, -1, 1))
sketch1.addConstraint(Sketcher.Constraint("Symmetric", 37, 3, 77, 3, -1, 1))
sketch1.addConstraint(Sketcher.Constraint("Symmetric", 38, 3, 78, 3, -1, 1))
sketch1.addConstraint(Sketcher.Constraint("Symmetric", 39, 3, 79, 3, -1, 1))
sketch1.addConstraint(Sketcher.Constraint("Symmetric", 25, 3, 31, 3, -2))
sketch1.addConstraint(Sketcher.Constraint("Symmetric", 21, 3, 35, 3, -2))
sketch1.addConstraint(Sketcher.Constraint("Symmetric", 19, 3, 37, 3, -2))
sketch1.addConstraint(Sketcher.Constraint("Symmetric", 18, 3, 38, 3, -2))
sketch1.addConstraint(Sketcher.Constraint("Symmetric", 17, 3, 39, 3, -2))
sketch1.addConstraint(Sketcher.Constraint("Symmetric", 15, 3, 41, 3, -2))
sketch1.addConstraint(Sketcher.Constraint("Symmetric", 13, 3, 43, 3, -2))
sketch1.addConstraint(Sketcher.Constraint("Symmetric", 10, 2, 45, 2, -2))
sketch1.addConstraint(Sketcher.Constraint("Symmetric", 6, 2, 49, 2, -2))
sketch1.addConstraint(Sketcher.Constraint("Symmetric", 66, 2, 69, 2, -2))
sketch1.addConstraint(Sketcher.Constraint("Perpendicular", 6, 10))
sketch1.addConstraint(Sketcher.Constraint("Parallel", 10, 26))
sketch1.addConstraint(Sketcher.Constraint("Perpendicular", 26, 30))
sketch1.addConstraint(Sketcher.Constraint("Horizontal", 19, 3, 21, 3))
sketch1.addConstraint(Sketcher.Constraint("Horizontal", 3, 3, 53, 3))
sketch1.addConstraint(Sketcher.Constraint("Horizontal", 37, 3, 19, 2))
sketch1.addConstraint(Sketcher.Constraint("Horizontal", 20, 2, 21, 2))
sketch1.addConstraint(Sketcher.Constraint("Horizontal", 34, 2, 35, 2))
sketch1.addConstraint(Sketcher.Constraint("Horizontal", 77, 3, 59, 2))
sketch1.addConstraint(Sketcher.Constraint("Horizontal", 74, 2, 75, 2))
sketch1.addConstraint(Sketcher.Constraint("Vertical", 15, 3, 17, 3))
sketch1.addConstraint(Sketcher.Constraint("Vertical", 33, 3, 63, 3))
sketch1.addConstraint(Sketcher.Constraint("Vertical", 23, 3, 73, 3))
sketch1.addConstraint(Sketcher.Constraint("Vertical", 79, 3, 0, 2))
sketch1.addConstraint(Sketcher.Constraint("Vertical", 0, 2, 1, 2))
sketch1.addConstraint(Sketcher.Constraint("Vertical", 14, 2, 15, 2))
sketch1.addConstraint(Sketcher.Constraint("Vertical", 57, 3, 39, 2))
sketch1.addConstraint(Sketcher.Constraint("Vertical", 54, 2, 55, 2))
sketch1.addConstraint(Sketcher.Constraint("Equal", 76, 0))
sketch1.addConstraint(Sketcher.Constraint("Equal", 74, 2))
sketch1.addConstraint(Sketcher.Constraint("Equal", 72, 4))
sketch1.addConstraint(Sketcher.Constraint("Equal", 68, 8))
sketch1.addConstraint(Sketcher.Constraint("Equal", 10, 26))
sketch1.addConstraint(Sketcher.Constraint("Radius", 1, Q("0.02 in")))
sketch1.addConstraint(Sketcher.Constraint("Radius", 5, Q("0.04 in")))
sketch1.addConstraint(Sketcher.Constraint("Diameter", 80, Q("0.205 in")))
sketch1.addConstraint(Sketcher.Constraint("Radius", 7, Q("0.125 in")))
sketch1.addConstraint(Sketcher.Constraint("Radius", 18, Q("0.083 in")))
sketch1.addConstraint(Sketcher.Constraint("DistanceX", 1, 3, -1, 1, Q("0.5 in")))
sketch1.addConstraint(Sketcher.Constraint("DistanceY", -1, 1, 19, 3, Q("0.5 in")))
sketch1.addConstraint(Sketcher.Constraint("Radius", 3, Q("0.0435 in")))
sketch1.addConstraint(Sketcher.Constraint("DistanceY", 3, 3, -1, 1, Q("0.171 in")))
sketch1.addConstraint(Sketcher.Constraint("DistanceX", 7, 3, -1, 1, Q("0.302 in")))
sketch1.addConstraint(Sketcher.Constraint("DistanceY", -1, 1, 17, 3, Q("0.396 in")))
sketch1.addConstraint(Sketcher.Constraint("DistanceX", 18, 3, -1, 1, Q("0.417 in")))
sketch1.addConstraint(Sketcher.Constraint("DistanceY", -1, 1, 18, 3, Q("0.417 in")))
sketch1.addConstraint(Sketcher.Constraint("DistanceX", 20, 1, 20, 2, 3.217316))
sketch1.addConstraint(Sketcher.Constraint("DistanceX", 24, 2, 24, 1, 2.131394))
pad1 = body.newObject("PartDesign::Pad", "Pad")
pad1.Profile = sketch1
pad1.Length = Q("23.195 in")

doc.recompute()
